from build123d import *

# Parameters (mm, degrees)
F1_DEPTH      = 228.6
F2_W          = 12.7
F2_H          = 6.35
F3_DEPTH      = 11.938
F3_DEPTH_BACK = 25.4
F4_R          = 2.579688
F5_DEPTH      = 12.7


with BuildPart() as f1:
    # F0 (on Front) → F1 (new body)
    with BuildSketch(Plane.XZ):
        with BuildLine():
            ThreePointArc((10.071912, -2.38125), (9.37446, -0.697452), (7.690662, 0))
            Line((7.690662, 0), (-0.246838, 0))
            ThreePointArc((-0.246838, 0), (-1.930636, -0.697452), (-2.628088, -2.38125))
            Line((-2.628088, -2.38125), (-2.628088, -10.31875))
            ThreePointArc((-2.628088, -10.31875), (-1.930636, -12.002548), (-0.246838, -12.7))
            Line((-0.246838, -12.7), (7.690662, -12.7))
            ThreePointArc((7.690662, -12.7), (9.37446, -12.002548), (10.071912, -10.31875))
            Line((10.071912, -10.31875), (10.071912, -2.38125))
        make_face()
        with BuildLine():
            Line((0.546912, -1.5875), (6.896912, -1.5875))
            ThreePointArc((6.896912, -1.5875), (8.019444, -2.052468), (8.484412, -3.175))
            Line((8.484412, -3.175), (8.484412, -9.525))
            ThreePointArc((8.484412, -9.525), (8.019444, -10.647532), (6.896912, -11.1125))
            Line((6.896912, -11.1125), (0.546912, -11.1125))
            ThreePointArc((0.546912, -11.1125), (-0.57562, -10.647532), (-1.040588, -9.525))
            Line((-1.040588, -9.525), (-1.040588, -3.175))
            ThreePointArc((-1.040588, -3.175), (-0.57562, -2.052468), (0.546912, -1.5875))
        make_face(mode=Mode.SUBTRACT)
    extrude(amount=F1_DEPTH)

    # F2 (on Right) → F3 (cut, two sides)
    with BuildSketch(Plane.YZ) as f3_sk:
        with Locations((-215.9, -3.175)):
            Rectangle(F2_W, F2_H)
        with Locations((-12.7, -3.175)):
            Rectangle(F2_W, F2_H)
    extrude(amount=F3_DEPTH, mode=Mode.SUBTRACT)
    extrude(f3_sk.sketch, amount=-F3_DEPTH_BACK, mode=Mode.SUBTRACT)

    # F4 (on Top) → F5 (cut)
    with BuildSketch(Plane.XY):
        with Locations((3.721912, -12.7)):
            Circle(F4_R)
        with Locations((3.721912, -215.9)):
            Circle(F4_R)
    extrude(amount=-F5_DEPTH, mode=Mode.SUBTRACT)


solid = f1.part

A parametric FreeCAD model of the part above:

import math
import FreeCAD as App
import Part
import Sketcher
Q = App.Units.Quantity

doc = App.newDocument("Part")
params = doc.addObject("Spreadsheet::Sheet", "Params")
for row, (alias, value) in enumerate([
    ("sketch1_radius", "0.09375 in"),
    ("sketch1_radius2", "0.0625 in"),
    ("sketch1_width", "0.25 in"),
    ("pad1_length", "9 in"),
    ("sketch2_width", "0.5 in"),
    ("sketch2_height", "0.25 in"),
    ("sketch3_diameter", "0.203125 in"),
    ("pocket2_length", "0.5 in"),
], start=1):
    params.set(f"A{row}", alias)
    params.set(f"B{row}", "=" + value)
    params.setAlias(f"B{row}", alias)

body = doc.addObject("PartDesign::Body", "Body")

# Sketch on XZ plane
sketch1 = body.newObject("Sketcher::SketchObject", "Sketch")
sketch1.AttachmentSupport = (doc.getObject("XZ_Plane"), [""])
sketch1.MapMode = "FlatFace"
sketch1.addGeometry([
    Part.ArcOfCircle(Part.Circle(App.Vector(7.7, -2.4, 0), App.Vector(0, 0, 1), 2.4), math.radians(0), math.radians(90)),  # 0
    Part.LineSegment(App.Vector(7.7, 0, 0), App.Vector(-0.2, 0, 0)),  # 1
    Part.ArcOfCircle(Part.Circle(App.Vector(-0.2, -2.4, 0), App.Vector(0, 0, 1), 2.4), math.radians(90), math.radians(180)),  # 2
    Part.LineSegment(App.Vector(-2.6, -2.4, 0), App.Vector(-2.6, -10.3, 0)),  # 3
    Part.ArcOfCircle(Part.Circle(App.Vector(-0.2, -10.3, 0), App.Vector(0, 0, 1), 2.4), math.radians(-180), math.radians(-90)),  # 4
    Part.LineSegment(App.Vector(-0.2, -12.7, 0), App.Vector(7.7, -12.7, 0)),  # 5
    Part.ArcOfCircle(Part.Circle(App.Vector(7.7, -10.3, 0), App.Vector(0, 0, 1), 2.4), math.radians(-90), math.radians(0)),  # 6
    Part.LineSegment(App.Vector(10.1, -10.3, 0), App.Vector(10.1, -2.4, 0)),  # 7
    Part.ArcOfCircle(Part.Circle(App.Vector(0.5, -3.2, 0), App.Vector(0, 0, 1), 1.6), math.radians(90), math.radians(180)),  # 8
    Part.LineSegment(App.Vector(0.5, -1.6, 0), App.Vector(6.9, -1.6, 0)),  # 9
    Part.ArcOfCircle(Part.Circle(App.Vector(6.9, -3.2, 0), App.Vector(0, 0, 1), 1.6), math.radians(0), math.radians(90)),  # 10
    Part.LineSegment(App.Vector(8.5, -3.2, 0), App.Vector(8.5, -9.5, 0)),  # 11
    Part.ArcOfCircle(Part.Circle(App.Vector(6.9, -9.5, 0), App.Vector(0, 0, 1), 1.6), math.radians(-90), math.radians(0)),  # 12
    Part.LineSegment(App.Vector(6.9, -11.1, 0), App.Vector(0.5, -11.1, 0)),  # 13
    Part.ArcOfCircle(Part.Circle(App.Vector(0.5, -9.5, 0), App.Vector(0, 0, 1), 1.6), math.radians(-180), math.radians(-90)),  # 14
    Part.LineSegment(App.Vector(-1, -9.5, 0), App.Vector(-1, -3.2, 0)),  # 15
], False)
sketch1.addConstraint([
    Sketcher.Constraint("Tangent", 0, 2, 1, 1),
    Sketcher.Constraint("Tangent", 1, 2, 2, 1),
    Sketcher.Constraint("Tangent", 2, 2, 3, 1),
    Sketcher.Constraint("Tangent", 3, 2, 4, 1),
    Sketcher.Constraint("Tangent", 4, 2, 5, 1),
    Sketcher.Constraint("Tangent", 5, 2, 6, 1),
    Sketcher.Constraint("Tangent", 6, 2, 7, 1),
    Sketcher.Constraint("Tangent", 7, 2, 0, 1),
    Sketcher.Constraint("Tangent", 8, 1, 9, 1),
    Sketcher.Constraint("Tangent", 9, 2, 10, 2),
    Sketcher.Constraint("Tangent", 10, 1, 11, 1),
    Sketcher.Constraint("Tangent", 11, 2, 12, 2),
    Sketcher.Constraint("Tangent", 12, 1, 13, 1),
    Sketcher.Constraint("Tangent", 13, 2, 14, 2),
    Sketcher.Constraint("Tangent", 14, 1, 15, 1),
    Sketcher.Constraint("Tangent", 15, 2, 8, 2),
    Sketcher.Constraint("Horizontal", 1),
    Sketcher.Constraint("Vertical", 3),
    Sketcher.Constraint("Horizontal", 5),
    Sketcher.Constraint("Vertical", 7),
    Sketcher.Constraint("Horizontal", 9),
    Sketcher.Constraint("Vertical", 11),
    Sketcher.Constraint("Horizontal", 13),
    Sketcher.Constraint("Vertical", 15),
    Sketcher.Constraint("Equal", 0, 2),
    Sketcher.Constraint("Equal", 2, 4),
    Sketcher.Constraint("Equal", 4, 6),
    Sketcher.Constraint("Equal", 8, 10),
    Sketcher.Constraint("Equal", 10, 12),
    Sketcher.Constraint("Equal", 12, 14),
    Sketcher.Constraint("PointOnObject", 0, 2, -1),
    Sketcher.Constraint("Equal", 5, 3),
    Sketcher.Constraint("Equal", 13, 11),
    Sketcher.Constraint("Radius", 0, Q("0.09375 in")),
    Sketcher.Constraint("Radius", 8, Q("0.0625 in")),
    Sketcher.Constraint("DistanceX", 9, 1, 9, 2, Q("0.25 in")),
    Sketcher.Constraint("DistanceY", 4, 2, -1, 1, Q("0.5 in")),
    Sketcher.Constraint("DistanceY", 8, 3, -1, 1, Q("0.125 in")),
    Sketcher.Constraint("DistanceX", 2, 3, 8, 3, Q("0.03125 in")),
    Sketcher.Constraint("DistanceX", -1, 1, 0, 3, 7.690662),
])
sketch1.setExpression("Constraints[33]", "Params.sketch1_radius")
sketch1.setExpression("Constraints[34]", "Params.sketch1_radius2")
sketch1.setExpression("Constraints[35]", "Params.sketch1_width")
pad1 = body.newObject("PartDesign::Pad", "Pad")
pad1.Profile = sketch1
pad1.setExpression("Length", "Params.pad1_length")

# Sketch on YZ plane
sketch2 = body.newObject("Sketcher::SketchObject", "Sketch001")
sketch2.AttachmentSupport = (doc.getObject("YZ_Plane"), [""])
sketch2.MapMode = "FlatFace"
sketch2.addGeometry([
    Part.LineSegment(App.Vector(-222, 0, 0), App.Vector(-222, -6, 0)),  # 0
    Part.LineSegment(App.Vector(-222, -6, 0), App.Vector(-210, -6, 0)),  # 1
    Part.LineSegment(App.Vector(-210, -6, 0), App.Vector(-210, 0, 0)),  # 2
    Part.LineSegment(App.Vector(-210, 0, 0), App.Vector(-222, 0, 0)),  # 3
    Part.LineSegment(App.Vector(-19, 0, 0), App.Vector(-19, -6, 0)),  # 4
    Part.LineSegment(App.Vector(-19, -6, 0), App.Vector(-6, -6, 0)),  # 5
    Part.LineSegment(App.Vector(-6, -6, 0), App.Vector(-6, 0, 0)),  # 6
    Part.LineSegment(App.Vector(-6, 0, 0), App.Vector(-19, 0, 0)),  # 7
], False)
sketch2.addConstraint([
    Sketcher.Constraint("Coincident", 0, 2, 1, 1),
    Sketcher.Constraint("Coincident", 1, 2, 2, 1),
    Sketcher.Constraint("Coincident", 2, 2, 3, 1),
    Sketcher.Constraint("Coincident", 3, 2, 0, 1),
    Sketcher.Constraint("Coincident", 4, 2, 5, 1),
    Sketcher.Constraint("Coincident", 5, 2, 6, 1),
    Sketcher.Constraint("Coincident", 6, 2, 7, 1),
    Sketcher.Constraint("Coincident", 7, 2, 4, 1),
    Sketcher.Constraint("Vertical", 0),
    Sketcher.Constraint("Horizontal", 1),
    Sketcher.Constraint("Vertical", 2),
    Sketcher.Constraint("Horizontal", 3),
    Sketcher.Constraint("Vertical", 4),
    Sketcher.Constraint("Horizontal", 5),
    Sketcher.Constraint("Vertical", 6),
    Sketcher.Constraint("Horizontal", 7),
    Sketcher.Constraint("PointOnObject", 2, 2, -1),
    Sketcher.Constraint("PointOnObject", 6, 2, -1),
    Sketcher.Constraint("Horizontal", 1, 2, 4, 2),
    Sketcher.Constraint("Equal", 3, 5),
    Sketcher.Constraint("DistanceX", 1, 1, 1, 2, Q("0.5 in")),
    Sketcher.Constraint("DistanceX", 0, 2, 4, 2, Q("8 in")),
    Sketcher.Constraint("DistanceY", 0, 2, 0, 1, Q("0.25 in")),
    Sketcher.Constraint("DistanceX", 0, 2, -1, 1, Q("8.75 in")),
])
sketch2.setExpression("Constraints[20]", "Params.sketch2_width")
sketch2.setExpression("Constraints[22]", "Params.sketch2_height")
pocket1 = body.newObject("PartDesign::Pocket", "Pocket")
pocket1.Profile = sketch2
pocket1.Type = "ThroughAll"
pocket1.Midplane = True

# Sketch on XY plane
sketch3 = body.newObject("Sketcher::SketchObject", "Sketch002")
sketch3.AttachmentSupport = (doc.getObject("XY_Plane"), [""])
sketch3.MapMode = "FlatFace"
sketch3.addGeometry([
    Part.Circle(App.Vector(3.7, -12.7, 0), App.Vector(0, 0, 1), 2.6),
    Part.Circle(App.Vector(3.7, -215.9, 0), App.Vector(0, 0, 1), 2.6),
], False)
sketch3.addConstraint([
    Sketcher.Constraint("Equal", 0, 1),
    Sketcher.Constraint("Vertical", 0, 3, 1, 3),
    Sketcher.Constraint("Diameter", 0, Q("0.203125 in")),
    Sketcher.Constraint("DistanceY", 1, 3, 0, 3, Q("8 in")),
    Sketcher.Constraint("DistanceY", 0, 3, -1, 1, Q("0.5 in")),
    Sketcher.Constraint("DistanceX", -1, 1, 0, 3, 3.721912),
])
sketch3.setExpression("Constraints[2]", "Params.sketch3_diameter")
pocket2 = body.newObject("PartDesign::Pocket", "Pocket001")
pocket2.Profile = sketch3
pocket2.setExpression("Length", "Params.pocket2_length")

doc.recompute()
